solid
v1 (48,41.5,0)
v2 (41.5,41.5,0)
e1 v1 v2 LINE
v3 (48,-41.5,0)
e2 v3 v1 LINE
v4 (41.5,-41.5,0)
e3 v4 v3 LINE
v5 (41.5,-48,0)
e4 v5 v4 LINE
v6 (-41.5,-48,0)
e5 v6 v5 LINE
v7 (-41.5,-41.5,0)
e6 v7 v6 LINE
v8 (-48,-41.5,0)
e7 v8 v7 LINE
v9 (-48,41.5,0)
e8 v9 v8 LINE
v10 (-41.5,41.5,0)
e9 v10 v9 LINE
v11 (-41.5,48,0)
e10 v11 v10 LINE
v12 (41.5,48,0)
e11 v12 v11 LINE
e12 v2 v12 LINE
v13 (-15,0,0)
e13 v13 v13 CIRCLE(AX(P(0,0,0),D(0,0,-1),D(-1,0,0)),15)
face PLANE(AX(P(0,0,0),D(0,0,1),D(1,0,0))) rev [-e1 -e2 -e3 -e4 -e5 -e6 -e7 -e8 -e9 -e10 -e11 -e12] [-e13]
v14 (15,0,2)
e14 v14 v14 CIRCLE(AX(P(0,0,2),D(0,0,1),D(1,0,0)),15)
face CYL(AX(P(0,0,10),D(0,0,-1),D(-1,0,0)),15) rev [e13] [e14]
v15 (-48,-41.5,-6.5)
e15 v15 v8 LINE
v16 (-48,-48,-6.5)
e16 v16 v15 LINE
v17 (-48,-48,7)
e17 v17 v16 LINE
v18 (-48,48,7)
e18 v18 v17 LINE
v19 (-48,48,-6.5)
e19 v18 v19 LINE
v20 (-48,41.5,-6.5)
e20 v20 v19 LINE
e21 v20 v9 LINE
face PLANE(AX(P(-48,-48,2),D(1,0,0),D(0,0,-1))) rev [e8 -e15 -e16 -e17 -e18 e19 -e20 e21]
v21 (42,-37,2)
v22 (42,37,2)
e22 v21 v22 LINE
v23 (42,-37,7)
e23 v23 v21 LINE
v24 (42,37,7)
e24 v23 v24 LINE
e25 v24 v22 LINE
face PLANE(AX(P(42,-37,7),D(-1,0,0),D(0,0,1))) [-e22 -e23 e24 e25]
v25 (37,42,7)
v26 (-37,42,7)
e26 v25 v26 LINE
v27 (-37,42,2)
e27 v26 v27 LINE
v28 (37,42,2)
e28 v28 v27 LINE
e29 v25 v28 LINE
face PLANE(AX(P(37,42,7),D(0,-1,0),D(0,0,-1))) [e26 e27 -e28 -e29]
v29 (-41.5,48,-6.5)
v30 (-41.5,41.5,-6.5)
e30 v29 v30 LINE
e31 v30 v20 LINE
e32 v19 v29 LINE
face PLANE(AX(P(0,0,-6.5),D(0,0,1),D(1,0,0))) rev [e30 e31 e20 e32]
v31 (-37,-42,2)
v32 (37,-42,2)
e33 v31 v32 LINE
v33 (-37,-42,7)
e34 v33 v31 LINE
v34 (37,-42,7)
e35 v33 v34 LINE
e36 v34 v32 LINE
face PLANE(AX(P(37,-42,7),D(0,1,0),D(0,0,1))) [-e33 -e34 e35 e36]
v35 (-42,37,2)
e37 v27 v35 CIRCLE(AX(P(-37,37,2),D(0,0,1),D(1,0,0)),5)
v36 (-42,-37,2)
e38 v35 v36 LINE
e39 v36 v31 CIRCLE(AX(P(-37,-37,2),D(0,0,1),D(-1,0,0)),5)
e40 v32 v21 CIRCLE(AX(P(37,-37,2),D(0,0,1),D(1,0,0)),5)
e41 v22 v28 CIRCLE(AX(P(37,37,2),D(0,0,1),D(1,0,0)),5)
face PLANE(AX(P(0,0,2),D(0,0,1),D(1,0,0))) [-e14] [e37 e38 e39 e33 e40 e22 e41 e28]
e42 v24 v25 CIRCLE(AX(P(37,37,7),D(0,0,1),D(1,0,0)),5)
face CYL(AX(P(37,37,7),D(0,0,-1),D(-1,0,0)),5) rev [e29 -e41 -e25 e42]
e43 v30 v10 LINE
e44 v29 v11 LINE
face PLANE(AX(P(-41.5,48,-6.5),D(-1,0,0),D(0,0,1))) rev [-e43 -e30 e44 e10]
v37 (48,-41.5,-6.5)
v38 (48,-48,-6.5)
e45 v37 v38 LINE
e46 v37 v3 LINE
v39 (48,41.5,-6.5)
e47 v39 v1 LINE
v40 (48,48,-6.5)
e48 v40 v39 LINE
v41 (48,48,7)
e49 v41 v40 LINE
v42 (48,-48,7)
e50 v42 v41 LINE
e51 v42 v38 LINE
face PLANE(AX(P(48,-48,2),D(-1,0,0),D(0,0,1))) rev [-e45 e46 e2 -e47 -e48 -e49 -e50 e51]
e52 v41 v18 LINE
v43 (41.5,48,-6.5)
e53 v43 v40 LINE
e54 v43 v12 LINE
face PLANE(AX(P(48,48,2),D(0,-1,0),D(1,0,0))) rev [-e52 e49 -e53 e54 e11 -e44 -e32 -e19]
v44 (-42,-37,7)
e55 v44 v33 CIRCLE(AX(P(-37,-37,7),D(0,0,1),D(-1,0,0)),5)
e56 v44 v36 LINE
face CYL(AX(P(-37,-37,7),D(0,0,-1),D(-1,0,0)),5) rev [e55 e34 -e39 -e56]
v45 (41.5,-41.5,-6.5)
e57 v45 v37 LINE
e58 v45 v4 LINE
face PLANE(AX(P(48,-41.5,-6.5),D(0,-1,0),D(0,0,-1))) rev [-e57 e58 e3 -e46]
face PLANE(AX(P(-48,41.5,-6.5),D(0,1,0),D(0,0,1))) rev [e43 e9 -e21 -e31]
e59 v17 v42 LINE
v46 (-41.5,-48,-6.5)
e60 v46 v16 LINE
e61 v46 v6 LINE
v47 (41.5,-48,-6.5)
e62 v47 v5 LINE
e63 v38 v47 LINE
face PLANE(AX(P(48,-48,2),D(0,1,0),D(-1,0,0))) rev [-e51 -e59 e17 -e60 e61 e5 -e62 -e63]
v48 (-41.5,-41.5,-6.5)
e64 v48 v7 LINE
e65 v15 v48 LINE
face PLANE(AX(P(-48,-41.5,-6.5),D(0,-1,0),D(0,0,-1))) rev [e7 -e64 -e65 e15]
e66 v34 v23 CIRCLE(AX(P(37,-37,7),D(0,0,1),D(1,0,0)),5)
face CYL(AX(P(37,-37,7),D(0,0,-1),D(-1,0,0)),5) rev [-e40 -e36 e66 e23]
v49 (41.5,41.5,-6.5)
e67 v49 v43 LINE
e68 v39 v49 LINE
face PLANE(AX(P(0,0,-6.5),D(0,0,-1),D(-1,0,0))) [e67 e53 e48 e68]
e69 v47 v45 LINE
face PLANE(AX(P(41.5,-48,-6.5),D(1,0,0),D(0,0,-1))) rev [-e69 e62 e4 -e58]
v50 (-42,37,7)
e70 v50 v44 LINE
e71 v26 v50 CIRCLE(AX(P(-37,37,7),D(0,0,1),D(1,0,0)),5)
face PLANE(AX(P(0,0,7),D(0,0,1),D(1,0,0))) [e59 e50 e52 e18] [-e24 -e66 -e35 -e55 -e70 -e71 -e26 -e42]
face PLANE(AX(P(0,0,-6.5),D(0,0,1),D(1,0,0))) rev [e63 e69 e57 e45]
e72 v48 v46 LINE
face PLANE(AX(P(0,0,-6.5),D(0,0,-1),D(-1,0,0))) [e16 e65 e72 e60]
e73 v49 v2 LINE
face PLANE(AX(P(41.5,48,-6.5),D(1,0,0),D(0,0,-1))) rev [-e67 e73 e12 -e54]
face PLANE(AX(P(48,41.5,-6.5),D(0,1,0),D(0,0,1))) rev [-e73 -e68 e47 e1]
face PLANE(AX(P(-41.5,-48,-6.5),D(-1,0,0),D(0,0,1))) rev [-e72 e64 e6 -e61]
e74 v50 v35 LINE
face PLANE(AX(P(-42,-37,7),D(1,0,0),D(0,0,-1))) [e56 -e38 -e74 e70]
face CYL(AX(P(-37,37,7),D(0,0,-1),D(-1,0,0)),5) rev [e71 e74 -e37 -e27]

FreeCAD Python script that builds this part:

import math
import FreeCAD as App
import Part
import Sketcher
from FreeCAD import Vector

doc = App.newDocument("Part")
body = doc.addObject("PartDesign::Body", "Body")

sketch1 = body.newObject("Sketcher::SketchObject", "Sketch")
sketch1.AttachmentSupport = (doc.getObject("XY_Plane"), [""])
sketch1.MapMode = "FlatFace"
sketch1.addGeometry([
    Part.LineSegment(Vector(-48, 48, 0), Vector(-48, -48, 0)),
    Part.LineSegment(Vector(-48, -48, 0), Vector(48, -48, 0)),
    Part.LineSegment(Vector(48, -48, 0), Vector(48, 48, 0)),
    Part.LineSegment(Vector(48, 48, 0), Vector(-48, 48, 0)),
], False)
sketch1.addConstraint([
    Sketcher.Constraint("Coincident", 0, 2, 1, 1),
    Sketcher.Constraint("Coincident", 1, 2, 2, 1),
    Sketcher.Constraint("Coincident", 2, 2, 3, 1),
    Sketcher.Constraint("Coincident", 3, 2, 0, 1),
    Sketcher.Constraint("Vertical", 0),
    Sketcher.Constraint("Horizontal", 1),
    Sketcher.Constraint("Vertical", 2),
    Sketcher.Constraint("Horizontal", 3),
    Sketcher.Constraint("Symmetric", 0, 2, 2, 2, -1, 1),
    Sketcher.Constraint("Equal", 3, 0),
    Sketcher.Constraint("DistanceX", 1, 1, 1, 2, 96.0),
])
pad1 = body.newObject("PartDesign::Pad", "Pad")
pad1.Profile = sketch1
pad1.Length = 2

sketch2 = body.newObject("Sketcher::SketchObject", "Sketch001")
sketch2.AttachmentSupport = (doc.getObject("XY_Plane"), [""])
sketch2.MapMode = "FlatFace"
sketch2.AttachmentOffset = App.Placement(Vector(0, 0, 2), App.Rotation())
sketch2.addGeometry([
    Part.LineSegment(Vector(-48, 48, 0), Vector(-48, -48, 0)),
    Part.LineSegment(Vector(-48, -48, 0), Vector(48, -48, 0)),
    Part.LineSegment(Vector(48, -48, 0), Vector(48, 48, 0)),
    Part.LineSegment(Vector(48, 48, 0), Vector(-48, 48, 0)),
    Part.ArcOfCircle(Part.Circle(Vector(37, -37, 0), Vector(0, 0, 1), 5), math.radians(-90), math.radians(0)),
    Part.LineSegment(Vector(37, -42, 0), Vector(-37, -42, 0)),
    Part.ArcOfCircle(Part.Circle(Vector(-37, -37, 0), Vector(0, 0, 1), 5), math.radians(180), math.radians(270)),
    Part.LineSegment(Vector(-42, -37, 0), Vector(-42, 37, 0)),
    Part.ArcOfCircle(Part.Circle(Vector(-37, 37, 0), Vector(0, 0, 1), 5), math.radians(90), math.radians(180)),
    Part.LineSegment(Vector(-37, 42, 0), Vector(37, 42, 0)),
    Part.ArcOfCircle(Part.Circle(Vector(37, 37, 0), Vector(0, 0, 1), 5), math.radians(0), math.radians(90)),
    Part.LineSegment(Vector(42, 37, 0), Vector(42, -37, 0)),
], False)
sketch2.addConstraint([
    Sketcher.Constraint("Coincident", 0, 2, 1, 1),
    Sketcher.Constraint("Coincident", 1, 2, 2, 1),
    Sketcher.Constraint("Coincident", 2, 2, 3, 1),
    Sketcher.Constraint("Coincident", 3, 2, 0, 1),
    Sketcher.Constraint("Tangent", 4, 1, 5, 1),
    Sketcher.Constraint("Tangent", 5, 2, 6, 2),
    Sketcher.Constraint("Tangent", 6, 1, 7, 1),
    Sketcher.Constraint("Tangent", 7, 2, 8, 2),
    Sketcher.Constraint("Tangent", 8, 1, 9, 1),
    Sketcher.Constraint("Tangent", 9, 2, 10, 2),
    Sketcher.Constraint("Tangent", 10, 1, 11, 1),
    Sketcher.Constraint("Tangent", 11, 2, 4, 2),
    Sketcher.Constraint("Vertical", 0),
    Sketcher.Constraint("Horizontal", 1),
    Sketcher.Constraint("Vertical", 2),
    Sketcher.Constraint("Horizontal", 3),
    Sketcher.Constraint("Horizontal", 5),
    Sketcher.Constraint("Vertical", 7),
    Sketcher.Constraint("Horizontal", 9),
    Sketcher.Constraint("Vertical", 11),
    Sketcher.Constraint("Equal", 4, 6),
    Sketcher.Constraint("Equal", 6, 8),
    Sketcher.Constraint("Equal", 8, 10),
    Sketcher.Constraint("Symmetric", 4, 3, 8, 3, -1, 1),
    Sketcher.Constraint("Symmetric", 0, 2, 2, 2, -1, 1),
    Sketcher.Constraint("Equal", 3, 0),
    Sketcher.Constraint("Equal", 9, 7),
    Sketcher.Constraint("Radius", 4, 5.0),
    Sketcher.Constraint("DistanceX", 1, 1, 1, 2, 96.0),
    Sketcher.Constraint("DistanceX", 5, 2, 5, 1, 74.0),
])
pad2 = body.newObject("PartDesign::Pad", "Pad001")
pad2.Profile = sketch2
pad2.Length = 5

sketch3 = body.newObject("Sketcher::SketchObject", "Sketch002")
sketch3.AttachmentSupport = (doc.getObject("XY_Plane"), [""])
sketch3.MapMode = "FlatFace"
sketch3.addGeometry([
    Part.LineSegment(Vector(48, 48, 0), Vector(48, 42, 0)),
    Part.LineSegment(Vector(48, 42, 0), Vector(42, 42, 0)),
    Part.LineSegment(Vector(42, 42, 0), Vector(42, 48, 0)),
    Part.LineSegment(Vector(42, 48, 0), Vector(48, 48, 0)),
    Part.LineSegment(Vector(-42, 48, 0), Vector(-42, 42, 0)),
    Part.LineSegment(Vector(-42, 42, 0), Vector(-48, 42, 0)),
    Part.LineSegment(Vector(-48, 42, 0), Vector(-48, 48, 0)),
    Part.LineSegment(Vector(-48, 48, 0), Vector(-42, 48, 0)),
    Part.LineSegment(Vector(48, -42, 0), Vector(48, -48, 0)),
    Part.LineSegment(Vector(48, -48, 0), Vector(42, -48, 0)),
    Part.LineSegment(Vector(42, -48, 0), Vector(42, -42, 0)),
    Part.LineSegment(Vector(42, -42, 0), Vector(48, -42, 0)),
    Part.LineSegment(Vector(-42, -42, 0), Vector(-42, -48, 0)),
    Part.LineSegment(Vector(-42, -48, 0), Vector(-48, -48, 0)),
    Part.LineSegment(Vector(-48, -48, 0), Vector(-48, -42, 0)),
    Part.LineSegment(Vector(-48, -42, 0), Vector(-42, -42, 0)),
], False)
sketch3.addConstraint([
    Sketcher.Constraint("Coincident", 0, 2, 1, 1),
    Sketcher.Constraint("Coincident", 1, 2, 2, 1),
    Sketcher.Constraint("Coincident", 2, 2, 3, 1),
    Sketcher.Constraint("Coincident", 3, 2, 0, 1),
    Sketcher.Constraint("Coincident", 4, 2, 5, 1),
    Sketcher.Constraint("Coincident", 5, 2, 6, 1),
    Sketcher.Constraint("Coincident", 6, 2, 7, 1),
    Sketcher.Constraint("Coincident", 7, 2, 4, 1),
    Sketcher.Constraint("Coincident", 8, 2, 9, 1),
    Sketcher.Constraint("Coincident", 9, 2, 10, 1),
    Sketcher.Constraint("Coincident", 10, 2, 11, 1),
    Sketcher.Constraint("Coincident", 11, 2, 8, 1),
    Sketcher.Constraint("Coincident", 12, 2, 13, 1),
    Sketcher.Constraint("Coincident", 13, 2, 14, 1),
    Sketcher.Constraint("Coincident", 14, 2, 15, 1),
    Sketcher.Constraint("Coincident", 15, 2, 12, 1),
    Sketcher.Constraint("Vertical", 0),
    Sketcher.Constraint("Horizontal", 1),
    Sketcher.Constraint("Vertical", 2),
    Sketcher.Constraint("Horizontal", 3),
    Sketcher.Constraint("Vertical", 4),
    Sketcher.Constraint("Horizontal", 5),
    Sketcher.Constraint("Vertical", 6),
    Sketcher.Constraint("Horizontal", 7),
    Sketcher.Constraint("Vertical", 8),
    Sketcher.Constraint("Horizontal", 9),
    Sketcher.Constraint("Vertical", 10),
    Sketcher.Constraint("Horizontal", 11),
    Sketcher.Constraint("Vertical", 12),
    Sketcher.Constraint("Horizontal", 13),
    Sketcher.Constraint("Vertical", 14),
    Sketcher.Constraint("Horizontal", 15),
    Sketcher.Constraint("Symmetric", 6, 2, 8, 2, -1, 1),
    Sketcher.Constraint("Symmetric", 4, 2, 10, 2, -1, 1),
    Sketcher.Constraint("Symmetric", 2, 2, 12, 2, -1, 1),
    Sketcher.Constraint("Symmetric", 0, 2, 14, 2, -1, 1),
    Sketcher.Constraint("Symmetric", 1, 2, 4, 2, -2),
    Sketcher.Constraint("Symmetric", 3, 2, 6, 2, -2),
    Sketcher.Constraint("Equal", 15, 0),
    Sketcher.Constraint("DistanceX", 1, 2, 1, 1, 6.5),
    Sketcher.Constraint("DistanceX", -1, 1, 0, 2, 48.0),
    Sketcher.Constraint("DistanceY", -1, 1, 2, 2, 48.0),
])
pad3 = body.newObject("PartDesign::Pad", "Pad002")
pad3.Profile = sketch3
pad3.Length = 6.5
pad3.Reversed = True

sketch4 = body.newObject("Sketcher::SketchObject", "Sketch003")
sketch4.AttachmentSupport = (doc.getObject("XY_Plane"), [""])
sketch4.MapMode = "FlatFace"
sketch4.addGeometry(Part.Circle(Vector(0, 0, 0), Vector(0, 0, 1), 15), False)
sketch4.addConstraint([
    Sketcher.Constraint("Coincident", 0, 3, -1, 1),
    Sketcher.Constraint("Diameter", 0, 30.0),
])
pocket1 = body.newObject("PartDesign::Pocket", "Pocket")
pocket1.Profile = sketch4
pocket1.Length = 10
pocket1.Reversed = True

doc.recompute()
